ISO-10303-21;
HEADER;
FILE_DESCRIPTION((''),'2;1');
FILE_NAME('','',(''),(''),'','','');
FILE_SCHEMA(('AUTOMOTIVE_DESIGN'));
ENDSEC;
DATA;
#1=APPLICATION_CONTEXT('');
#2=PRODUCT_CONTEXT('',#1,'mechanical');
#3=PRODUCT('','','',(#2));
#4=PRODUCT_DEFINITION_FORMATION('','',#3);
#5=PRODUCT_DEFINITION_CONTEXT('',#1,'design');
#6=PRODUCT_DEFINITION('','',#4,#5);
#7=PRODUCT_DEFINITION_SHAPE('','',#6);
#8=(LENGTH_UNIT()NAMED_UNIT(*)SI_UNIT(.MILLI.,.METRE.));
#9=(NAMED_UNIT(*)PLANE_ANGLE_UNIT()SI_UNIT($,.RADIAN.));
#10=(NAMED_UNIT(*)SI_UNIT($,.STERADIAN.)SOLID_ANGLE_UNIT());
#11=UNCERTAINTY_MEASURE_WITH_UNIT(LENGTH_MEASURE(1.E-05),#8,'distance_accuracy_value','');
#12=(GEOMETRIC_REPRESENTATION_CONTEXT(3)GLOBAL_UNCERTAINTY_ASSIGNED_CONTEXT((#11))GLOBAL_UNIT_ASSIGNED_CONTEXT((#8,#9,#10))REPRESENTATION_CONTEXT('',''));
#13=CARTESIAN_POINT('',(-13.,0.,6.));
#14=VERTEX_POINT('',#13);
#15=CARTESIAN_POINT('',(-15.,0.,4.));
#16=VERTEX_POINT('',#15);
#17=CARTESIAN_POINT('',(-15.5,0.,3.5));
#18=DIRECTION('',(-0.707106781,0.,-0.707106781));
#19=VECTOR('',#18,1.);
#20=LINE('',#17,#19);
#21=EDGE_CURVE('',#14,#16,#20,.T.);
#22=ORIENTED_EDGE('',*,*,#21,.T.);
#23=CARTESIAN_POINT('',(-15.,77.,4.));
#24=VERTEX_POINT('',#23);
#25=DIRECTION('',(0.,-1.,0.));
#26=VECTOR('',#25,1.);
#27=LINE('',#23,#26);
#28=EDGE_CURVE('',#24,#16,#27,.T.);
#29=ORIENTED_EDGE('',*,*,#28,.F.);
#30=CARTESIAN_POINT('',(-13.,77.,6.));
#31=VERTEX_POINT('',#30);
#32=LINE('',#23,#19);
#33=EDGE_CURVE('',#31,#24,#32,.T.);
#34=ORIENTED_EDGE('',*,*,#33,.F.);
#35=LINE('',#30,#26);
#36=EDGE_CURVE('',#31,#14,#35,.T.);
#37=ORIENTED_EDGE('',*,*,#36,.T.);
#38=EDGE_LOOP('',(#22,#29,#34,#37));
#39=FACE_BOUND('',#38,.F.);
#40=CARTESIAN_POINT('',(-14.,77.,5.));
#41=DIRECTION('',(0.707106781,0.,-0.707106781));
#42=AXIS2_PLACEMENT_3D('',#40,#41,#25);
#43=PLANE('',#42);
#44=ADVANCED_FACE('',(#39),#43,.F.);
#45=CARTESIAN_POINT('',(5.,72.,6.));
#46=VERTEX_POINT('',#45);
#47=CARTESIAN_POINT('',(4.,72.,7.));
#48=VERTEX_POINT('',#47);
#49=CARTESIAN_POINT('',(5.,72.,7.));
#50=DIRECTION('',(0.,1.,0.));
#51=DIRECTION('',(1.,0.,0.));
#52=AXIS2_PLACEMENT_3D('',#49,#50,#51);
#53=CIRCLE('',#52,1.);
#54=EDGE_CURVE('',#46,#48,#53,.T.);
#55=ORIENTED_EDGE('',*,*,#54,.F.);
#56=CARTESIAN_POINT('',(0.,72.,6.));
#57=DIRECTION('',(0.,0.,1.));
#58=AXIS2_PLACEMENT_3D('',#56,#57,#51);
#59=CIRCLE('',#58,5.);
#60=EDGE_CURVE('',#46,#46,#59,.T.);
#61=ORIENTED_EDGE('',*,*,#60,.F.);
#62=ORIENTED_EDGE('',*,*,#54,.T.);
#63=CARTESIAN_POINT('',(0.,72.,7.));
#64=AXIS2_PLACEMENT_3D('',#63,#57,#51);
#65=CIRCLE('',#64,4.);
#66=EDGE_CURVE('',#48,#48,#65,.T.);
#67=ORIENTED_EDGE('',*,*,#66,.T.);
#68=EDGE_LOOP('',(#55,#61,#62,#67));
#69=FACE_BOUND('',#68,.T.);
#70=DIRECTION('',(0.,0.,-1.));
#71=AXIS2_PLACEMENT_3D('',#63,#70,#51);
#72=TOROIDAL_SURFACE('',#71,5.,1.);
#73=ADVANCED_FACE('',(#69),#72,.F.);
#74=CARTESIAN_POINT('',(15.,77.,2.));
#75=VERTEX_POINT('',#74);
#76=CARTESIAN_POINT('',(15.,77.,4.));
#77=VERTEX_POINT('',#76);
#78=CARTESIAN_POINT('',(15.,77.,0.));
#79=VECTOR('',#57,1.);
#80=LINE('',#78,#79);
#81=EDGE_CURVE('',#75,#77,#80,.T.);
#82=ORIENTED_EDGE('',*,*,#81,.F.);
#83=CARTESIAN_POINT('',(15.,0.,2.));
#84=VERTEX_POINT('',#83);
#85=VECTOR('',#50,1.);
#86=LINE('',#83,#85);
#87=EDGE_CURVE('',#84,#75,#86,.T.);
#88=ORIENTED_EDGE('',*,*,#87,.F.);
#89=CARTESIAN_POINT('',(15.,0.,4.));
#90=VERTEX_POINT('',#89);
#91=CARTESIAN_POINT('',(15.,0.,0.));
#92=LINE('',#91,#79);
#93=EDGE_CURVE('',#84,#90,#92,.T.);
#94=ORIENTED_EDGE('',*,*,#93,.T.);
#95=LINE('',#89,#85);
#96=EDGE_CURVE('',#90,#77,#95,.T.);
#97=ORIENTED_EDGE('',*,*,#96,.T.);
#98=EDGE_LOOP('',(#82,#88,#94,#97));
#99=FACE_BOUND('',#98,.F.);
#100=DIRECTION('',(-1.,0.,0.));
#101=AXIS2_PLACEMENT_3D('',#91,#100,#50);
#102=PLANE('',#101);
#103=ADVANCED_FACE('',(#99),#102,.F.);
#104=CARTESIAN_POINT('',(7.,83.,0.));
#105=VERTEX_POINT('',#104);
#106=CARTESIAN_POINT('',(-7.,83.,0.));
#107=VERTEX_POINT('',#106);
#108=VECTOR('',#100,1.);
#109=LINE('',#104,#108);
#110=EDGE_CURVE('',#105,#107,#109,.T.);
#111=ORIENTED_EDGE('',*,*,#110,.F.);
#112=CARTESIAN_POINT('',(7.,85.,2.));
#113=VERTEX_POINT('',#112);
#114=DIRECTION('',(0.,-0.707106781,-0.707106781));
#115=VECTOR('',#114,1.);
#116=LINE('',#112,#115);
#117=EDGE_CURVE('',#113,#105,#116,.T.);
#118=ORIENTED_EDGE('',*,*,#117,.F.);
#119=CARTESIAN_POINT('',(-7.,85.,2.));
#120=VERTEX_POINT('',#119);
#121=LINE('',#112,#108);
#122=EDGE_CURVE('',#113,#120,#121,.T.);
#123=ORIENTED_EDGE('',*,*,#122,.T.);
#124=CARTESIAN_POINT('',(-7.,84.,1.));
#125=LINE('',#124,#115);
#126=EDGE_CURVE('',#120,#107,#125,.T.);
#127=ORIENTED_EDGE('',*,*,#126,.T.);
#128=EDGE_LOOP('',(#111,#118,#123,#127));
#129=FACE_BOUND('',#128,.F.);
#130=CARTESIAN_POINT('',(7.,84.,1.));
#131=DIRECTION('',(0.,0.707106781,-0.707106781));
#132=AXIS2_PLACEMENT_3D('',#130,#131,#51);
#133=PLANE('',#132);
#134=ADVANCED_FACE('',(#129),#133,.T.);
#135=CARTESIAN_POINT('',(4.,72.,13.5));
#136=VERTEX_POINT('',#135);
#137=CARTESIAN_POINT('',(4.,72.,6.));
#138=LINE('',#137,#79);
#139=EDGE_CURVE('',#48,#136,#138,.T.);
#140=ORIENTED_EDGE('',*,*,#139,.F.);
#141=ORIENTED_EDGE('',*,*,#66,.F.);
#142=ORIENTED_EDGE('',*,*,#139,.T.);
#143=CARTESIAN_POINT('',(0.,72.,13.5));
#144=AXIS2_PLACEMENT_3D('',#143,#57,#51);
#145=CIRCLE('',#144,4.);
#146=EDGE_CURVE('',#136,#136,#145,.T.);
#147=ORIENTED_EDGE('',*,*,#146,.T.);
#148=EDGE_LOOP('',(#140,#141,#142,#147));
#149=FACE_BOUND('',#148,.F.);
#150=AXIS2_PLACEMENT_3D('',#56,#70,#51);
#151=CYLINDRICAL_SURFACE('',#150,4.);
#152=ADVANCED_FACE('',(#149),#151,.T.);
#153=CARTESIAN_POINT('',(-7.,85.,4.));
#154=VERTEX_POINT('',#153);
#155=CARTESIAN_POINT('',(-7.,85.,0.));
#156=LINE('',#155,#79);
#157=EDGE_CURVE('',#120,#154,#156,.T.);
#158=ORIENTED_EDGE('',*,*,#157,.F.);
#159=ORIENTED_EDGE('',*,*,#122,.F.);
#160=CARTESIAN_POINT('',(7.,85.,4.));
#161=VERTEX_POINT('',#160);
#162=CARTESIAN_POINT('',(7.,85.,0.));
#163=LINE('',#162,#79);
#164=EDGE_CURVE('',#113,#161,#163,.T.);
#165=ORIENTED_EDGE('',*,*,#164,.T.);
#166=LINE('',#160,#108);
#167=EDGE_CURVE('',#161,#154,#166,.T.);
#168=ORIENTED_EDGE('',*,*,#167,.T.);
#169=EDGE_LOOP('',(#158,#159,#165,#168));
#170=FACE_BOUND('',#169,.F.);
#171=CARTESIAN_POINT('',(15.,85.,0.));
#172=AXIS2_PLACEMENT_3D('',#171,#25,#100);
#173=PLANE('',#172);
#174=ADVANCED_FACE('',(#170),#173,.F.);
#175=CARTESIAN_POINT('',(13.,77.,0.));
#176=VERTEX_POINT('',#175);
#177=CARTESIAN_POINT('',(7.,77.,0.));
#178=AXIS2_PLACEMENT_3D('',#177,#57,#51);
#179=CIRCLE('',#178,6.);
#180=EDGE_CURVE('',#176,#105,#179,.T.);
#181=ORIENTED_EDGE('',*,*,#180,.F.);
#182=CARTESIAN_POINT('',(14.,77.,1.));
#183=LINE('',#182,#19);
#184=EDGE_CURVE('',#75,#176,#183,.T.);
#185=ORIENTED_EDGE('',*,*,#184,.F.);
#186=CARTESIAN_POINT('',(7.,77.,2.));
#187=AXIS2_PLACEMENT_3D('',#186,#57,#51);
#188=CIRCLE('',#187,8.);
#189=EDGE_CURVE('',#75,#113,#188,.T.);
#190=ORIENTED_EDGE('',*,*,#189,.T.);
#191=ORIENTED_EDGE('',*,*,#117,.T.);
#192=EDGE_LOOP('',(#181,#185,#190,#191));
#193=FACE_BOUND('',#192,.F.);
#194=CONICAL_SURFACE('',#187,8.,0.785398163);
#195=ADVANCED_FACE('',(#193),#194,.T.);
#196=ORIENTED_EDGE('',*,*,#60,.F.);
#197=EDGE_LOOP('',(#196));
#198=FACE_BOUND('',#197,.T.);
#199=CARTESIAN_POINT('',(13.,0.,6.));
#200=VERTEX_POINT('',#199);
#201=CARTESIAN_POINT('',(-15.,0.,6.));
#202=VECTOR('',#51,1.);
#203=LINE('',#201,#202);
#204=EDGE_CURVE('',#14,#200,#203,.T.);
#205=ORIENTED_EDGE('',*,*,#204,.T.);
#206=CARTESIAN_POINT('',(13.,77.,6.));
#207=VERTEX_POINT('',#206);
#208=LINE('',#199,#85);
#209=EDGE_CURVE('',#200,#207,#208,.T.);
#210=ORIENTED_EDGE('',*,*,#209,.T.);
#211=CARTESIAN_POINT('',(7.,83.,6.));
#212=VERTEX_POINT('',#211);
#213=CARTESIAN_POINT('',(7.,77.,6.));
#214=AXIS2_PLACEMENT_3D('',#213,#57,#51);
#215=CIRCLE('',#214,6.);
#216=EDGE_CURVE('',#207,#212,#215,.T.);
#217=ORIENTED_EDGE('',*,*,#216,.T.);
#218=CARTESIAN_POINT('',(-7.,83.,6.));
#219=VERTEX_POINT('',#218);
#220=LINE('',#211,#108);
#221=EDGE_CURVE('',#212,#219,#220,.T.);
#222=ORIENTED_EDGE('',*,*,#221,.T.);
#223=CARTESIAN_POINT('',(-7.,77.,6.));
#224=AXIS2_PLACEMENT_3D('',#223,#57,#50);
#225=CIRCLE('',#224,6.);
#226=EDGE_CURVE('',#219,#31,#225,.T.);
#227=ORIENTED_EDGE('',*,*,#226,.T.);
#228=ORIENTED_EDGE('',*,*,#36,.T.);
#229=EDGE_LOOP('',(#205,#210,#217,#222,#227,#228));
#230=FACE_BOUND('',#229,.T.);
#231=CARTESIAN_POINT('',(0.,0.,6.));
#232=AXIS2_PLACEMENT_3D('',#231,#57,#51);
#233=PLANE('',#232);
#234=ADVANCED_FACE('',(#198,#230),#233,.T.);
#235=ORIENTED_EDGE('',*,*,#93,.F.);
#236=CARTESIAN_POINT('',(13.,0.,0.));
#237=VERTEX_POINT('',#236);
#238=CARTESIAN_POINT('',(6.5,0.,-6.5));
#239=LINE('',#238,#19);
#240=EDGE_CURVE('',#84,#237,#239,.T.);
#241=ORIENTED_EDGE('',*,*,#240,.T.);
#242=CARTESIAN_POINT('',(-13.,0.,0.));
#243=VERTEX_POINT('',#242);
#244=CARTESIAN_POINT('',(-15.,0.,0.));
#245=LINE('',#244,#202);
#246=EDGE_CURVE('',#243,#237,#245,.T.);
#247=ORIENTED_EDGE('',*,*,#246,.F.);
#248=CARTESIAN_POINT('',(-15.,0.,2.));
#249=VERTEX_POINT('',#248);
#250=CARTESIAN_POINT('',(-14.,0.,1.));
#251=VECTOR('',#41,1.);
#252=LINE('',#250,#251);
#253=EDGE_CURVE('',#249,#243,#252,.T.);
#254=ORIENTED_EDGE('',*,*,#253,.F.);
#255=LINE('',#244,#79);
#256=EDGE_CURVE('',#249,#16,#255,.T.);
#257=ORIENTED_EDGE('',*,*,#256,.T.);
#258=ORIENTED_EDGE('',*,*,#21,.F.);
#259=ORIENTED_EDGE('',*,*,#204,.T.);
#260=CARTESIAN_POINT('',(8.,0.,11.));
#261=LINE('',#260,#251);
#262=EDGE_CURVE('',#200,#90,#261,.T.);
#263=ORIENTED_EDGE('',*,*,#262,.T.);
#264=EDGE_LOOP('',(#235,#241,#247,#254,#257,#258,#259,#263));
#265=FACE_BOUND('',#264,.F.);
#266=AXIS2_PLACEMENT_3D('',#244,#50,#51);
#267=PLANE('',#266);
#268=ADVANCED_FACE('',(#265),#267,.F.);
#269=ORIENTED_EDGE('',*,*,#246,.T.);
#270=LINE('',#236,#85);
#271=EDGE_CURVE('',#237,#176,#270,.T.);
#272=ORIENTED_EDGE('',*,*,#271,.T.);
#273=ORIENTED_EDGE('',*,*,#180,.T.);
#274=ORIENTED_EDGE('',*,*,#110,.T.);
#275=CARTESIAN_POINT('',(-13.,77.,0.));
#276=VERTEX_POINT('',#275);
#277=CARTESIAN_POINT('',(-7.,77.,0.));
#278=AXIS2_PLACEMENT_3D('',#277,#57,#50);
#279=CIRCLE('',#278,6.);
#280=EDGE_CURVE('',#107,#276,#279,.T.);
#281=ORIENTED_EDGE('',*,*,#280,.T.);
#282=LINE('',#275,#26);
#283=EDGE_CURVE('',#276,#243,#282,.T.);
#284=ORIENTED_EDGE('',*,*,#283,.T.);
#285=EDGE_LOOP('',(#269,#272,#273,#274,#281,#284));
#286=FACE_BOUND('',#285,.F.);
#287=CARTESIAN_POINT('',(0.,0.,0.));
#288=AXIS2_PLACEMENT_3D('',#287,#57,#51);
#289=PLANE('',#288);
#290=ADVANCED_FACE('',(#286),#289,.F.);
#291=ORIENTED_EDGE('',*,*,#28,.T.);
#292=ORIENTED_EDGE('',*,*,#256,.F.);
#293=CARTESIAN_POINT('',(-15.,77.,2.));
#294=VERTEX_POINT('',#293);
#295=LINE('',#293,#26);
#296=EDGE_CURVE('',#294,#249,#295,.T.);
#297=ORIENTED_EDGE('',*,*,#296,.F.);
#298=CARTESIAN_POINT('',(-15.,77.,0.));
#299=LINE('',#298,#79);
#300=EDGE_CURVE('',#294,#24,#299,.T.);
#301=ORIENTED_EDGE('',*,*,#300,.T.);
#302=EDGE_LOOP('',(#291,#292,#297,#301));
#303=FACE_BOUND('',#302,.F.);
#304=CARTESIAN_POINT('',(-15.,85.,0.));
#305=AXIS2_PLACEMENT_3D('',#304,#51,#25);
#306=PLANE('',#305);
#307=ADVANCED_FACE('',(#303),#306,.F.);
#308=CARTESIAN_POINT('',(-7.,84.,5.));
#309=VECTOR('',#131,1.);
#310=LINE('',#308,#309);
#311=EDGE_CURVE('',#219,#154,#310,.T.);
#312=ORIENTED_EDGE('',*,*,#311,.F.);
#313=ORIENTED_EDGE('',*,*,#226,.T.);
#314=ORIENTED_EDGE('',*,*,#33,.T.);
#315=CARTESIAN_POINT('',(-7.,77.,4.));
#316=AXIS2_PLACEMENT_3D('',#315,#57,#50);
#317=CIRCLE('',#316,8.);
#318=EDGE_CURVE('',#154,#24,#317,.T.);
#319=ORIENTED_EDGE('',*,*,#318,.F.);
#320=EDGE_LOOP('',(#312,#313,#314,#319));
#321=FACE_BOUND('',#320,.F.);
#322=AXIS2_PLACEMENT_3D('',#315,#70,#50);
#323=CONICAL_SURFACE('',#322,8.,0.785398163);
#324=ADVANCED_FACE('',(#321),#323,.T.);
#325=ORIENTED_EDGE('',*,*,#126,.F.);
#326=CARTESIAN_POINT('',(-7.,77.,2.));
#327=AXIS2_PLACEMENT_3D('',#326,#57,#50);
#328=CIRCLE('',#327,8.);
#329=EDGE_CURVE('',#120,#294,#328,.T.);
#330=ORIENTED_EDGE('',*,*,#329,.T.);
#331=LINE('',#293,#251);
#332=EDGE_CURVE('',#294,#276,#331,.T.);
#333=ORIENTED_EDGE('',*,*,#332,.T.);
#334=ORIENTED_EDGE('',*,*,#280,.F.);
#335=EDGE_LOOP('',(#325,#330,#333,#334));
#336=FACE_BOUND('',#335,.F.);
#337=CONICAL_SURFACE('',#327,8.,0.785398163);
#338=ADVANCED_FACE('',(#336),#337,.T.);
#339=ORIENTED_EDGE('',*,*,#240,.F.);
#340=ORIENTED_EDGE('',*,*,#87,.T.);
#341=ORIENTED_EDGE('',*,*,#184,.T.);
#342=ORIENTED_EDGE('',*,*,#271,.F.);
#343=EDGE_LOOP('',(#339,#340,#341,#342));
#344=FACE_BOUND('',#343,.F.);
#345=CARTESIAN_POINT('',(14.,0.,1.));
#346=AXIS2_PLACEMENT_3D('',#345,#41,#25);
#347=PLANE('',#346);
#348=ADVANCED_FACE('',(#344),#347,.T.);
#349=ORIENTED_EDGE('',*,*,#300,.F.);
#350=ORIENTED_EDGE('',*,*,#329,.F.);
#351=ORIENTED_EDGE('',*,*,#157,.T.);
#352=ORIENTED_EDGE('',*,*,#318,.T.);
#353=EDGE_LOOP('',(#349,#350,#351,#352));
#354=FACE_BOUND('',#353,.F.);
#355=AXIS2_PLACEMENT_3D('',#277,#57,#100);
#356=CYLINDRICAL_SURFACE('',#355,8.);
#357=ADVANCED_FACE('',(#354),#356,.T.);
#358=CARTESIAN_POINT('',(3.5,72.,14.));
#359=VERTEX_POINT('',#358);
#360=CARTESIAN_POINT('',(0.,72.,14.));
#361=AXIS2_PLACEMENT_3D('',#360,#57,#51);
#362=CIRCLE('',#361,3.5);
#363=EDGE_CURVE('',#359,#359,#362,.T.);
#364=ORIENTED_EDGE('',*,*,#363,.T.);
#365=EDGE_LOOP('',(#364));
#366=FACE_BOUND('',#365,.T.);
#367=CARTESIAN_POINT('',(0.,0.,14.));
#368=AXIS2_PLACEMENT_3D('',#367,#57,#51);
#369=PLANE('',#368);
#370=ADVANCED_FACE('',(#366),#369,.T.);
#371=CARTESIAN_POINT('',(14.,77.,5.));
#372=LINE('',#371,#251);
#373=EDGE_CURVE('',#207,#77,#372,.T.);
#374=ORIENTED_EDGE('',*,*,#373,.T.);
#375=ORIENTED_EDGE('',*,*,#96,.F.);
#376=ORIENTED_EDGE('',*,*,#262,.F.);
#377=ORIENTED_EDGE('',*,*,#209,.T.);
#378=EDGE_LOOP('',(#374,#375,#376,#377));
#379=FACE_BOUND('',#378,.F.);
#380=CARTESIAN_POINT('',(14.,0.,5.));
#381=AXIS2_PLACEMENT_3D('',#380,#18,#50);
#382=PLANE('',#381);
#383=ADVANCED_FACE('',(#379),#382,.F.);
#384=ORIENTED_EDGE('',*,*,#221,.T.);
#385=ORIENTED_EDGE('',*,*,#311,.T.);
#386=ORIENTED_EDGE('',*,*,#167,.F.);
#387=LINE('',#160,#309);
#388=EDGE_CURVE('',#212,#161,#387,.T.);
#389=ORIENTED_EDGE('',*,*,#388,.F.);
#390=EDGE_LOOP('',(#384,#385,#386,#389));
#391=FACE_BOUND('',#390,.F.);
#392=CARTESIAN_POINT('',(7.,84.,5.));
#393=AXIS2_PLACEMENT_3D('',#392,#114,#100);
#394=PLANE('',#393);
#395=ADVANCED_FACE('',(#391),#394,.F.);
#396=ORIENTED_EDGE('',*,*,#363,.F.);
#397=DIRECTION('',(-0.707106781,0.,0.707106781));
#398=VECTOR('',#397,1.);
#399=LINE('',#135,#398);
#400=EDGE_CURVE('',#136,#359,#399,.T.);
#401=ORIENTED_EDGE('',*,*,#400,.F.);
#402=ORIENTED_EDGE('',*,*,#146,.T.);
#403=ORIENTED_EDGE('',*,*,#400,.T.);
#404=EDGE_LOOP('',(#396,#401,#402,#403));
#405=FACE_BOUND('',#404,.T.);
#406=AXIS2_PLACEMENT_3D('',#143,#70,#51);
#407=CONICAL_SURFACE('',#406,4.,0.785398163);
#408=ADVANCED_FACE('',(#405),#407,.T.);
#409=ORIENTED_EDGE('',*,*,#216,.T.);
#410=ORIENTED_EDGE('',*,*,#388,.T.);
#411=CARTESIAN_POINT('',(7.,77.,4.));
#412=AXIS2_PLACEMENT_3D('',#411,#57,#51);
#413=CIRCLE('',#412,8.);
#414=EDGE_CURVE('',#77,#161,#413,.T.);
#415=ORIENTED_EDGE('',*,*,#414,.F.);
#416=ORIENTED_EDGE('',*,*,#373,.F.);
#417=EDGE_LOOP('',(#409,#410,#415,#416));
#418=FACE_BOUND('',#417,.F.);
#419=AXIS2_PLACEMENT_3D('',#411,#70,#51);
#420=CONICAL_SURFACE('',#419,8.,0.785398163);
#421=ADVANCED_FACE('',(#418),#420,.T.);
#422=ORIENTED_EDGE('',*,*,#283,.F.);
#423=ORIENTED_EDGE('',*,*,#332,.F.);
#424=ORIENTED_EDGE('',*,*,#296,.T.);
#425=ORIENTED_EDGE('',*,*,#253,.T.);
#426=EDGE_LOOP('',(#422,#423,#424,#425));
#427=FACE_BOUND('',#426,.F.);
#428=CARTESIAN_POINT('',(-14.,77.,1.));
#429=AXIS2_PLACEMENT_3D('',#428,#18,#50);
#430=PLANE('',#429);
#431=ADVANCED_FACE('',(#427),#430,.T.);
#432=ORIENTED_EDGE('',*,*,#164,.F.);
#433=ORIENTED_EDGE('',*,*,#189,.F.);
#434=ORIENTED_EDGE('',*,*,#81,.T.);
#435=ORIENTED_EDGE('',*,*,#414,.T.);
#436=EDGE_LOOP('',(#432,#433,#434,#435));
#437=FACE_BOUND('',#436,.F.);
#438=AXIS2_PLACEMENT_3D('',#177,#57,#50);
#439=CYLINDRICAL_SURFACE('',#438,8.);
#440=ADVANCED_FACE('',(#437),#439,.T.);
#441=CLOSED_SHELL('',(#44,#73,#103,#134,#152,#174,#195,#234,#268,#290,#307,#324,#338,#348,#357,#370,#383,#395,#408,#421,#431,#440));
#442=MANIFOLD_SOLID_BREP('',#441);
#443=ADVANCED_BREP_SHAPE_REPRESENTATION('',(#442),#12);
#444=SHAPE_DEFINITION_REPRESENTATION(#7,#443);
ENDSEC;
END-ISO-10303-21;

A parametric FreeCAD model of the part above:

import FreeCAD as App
import Part
import Sketcher


def edges_at(feature, points):
    """Names of the edges that pass closest to the given points."""
    edges = feature.Shape.Edges
    near = lambda p: min(range(len(edges)), key=lambda i: edges[i].distToShape(Part.Vertex(*p))[0])
    return sorted({f"Edge{near(p) + 1}" for p in points})


def add_polygon(sketch, points):
    """Adds a closed chain of lines whose ends are joined by coincident constraints."""
    first, n = sketch.GeometryCount, len(points)
    for a, b in zip(points, points[1:] + points[:1]):
        sketch.addGeometry(Part.LineSegment(App.Vector(*a, 0), App.Vector(*b, 0)), False)
    for i in range(n):
        sketch.addConstraint(Sketcher.Constraint("Coincident", first + i, 2, first + (i + 1) % n, 1))

doc = App.newDocument("Part")
body = doc.addObject("PartDesign::Body", "Body")

# Sketch on XY plane
sketch1 = doc.addObject("Sketcher::SketchObject", "Sketch")
body.addObject(sketch1)
sketch1.AttachmentSupport = (doc.XY_Plane, [""])
sketch1.MapMode = "FlatFace"
add_polygon(sketch1, [(-15, 85), (-15, 0), (15, 0), (15, 85)])  # lines 0-3
sketch1.addConstraint(Sketcher.Constraint("Vertical", 0))
sketch1.addConstraint(Sketcher.Constraint("Horizontal", 1))
sketch1.addConstraint(Sketcher.Constraint("Vertical", 2))
sketch1.addConstraint(Sketcher.Constraint("Horizontal", 3))
sketch1.addConstraint(Sketcher.Constraint("Symmetric", 0, 2, 1, 2, -1, 1))
sketch1.addConstraint(Sketcher.Constraint("DistanceX", 1, 1, 1, 2, 30.0))
sketch1.addConstraint(Sketcher.Constraint("DistanceY", 0, 2, 0, 1, 85.0))
pad1 = doc.addObject("PartDesign::Pad", "Pad")
body.addObject(pad1)
pad1.Profile = sketch1
pad1.Length = 6
doc.recompute()

fillet = doc.addObject("PartDesign::Fillet", "Fillet")
body.addObject(fillet)
fillet.Base = (pad1, edges_at(pad1, [(15, 85, 3), (-15, 85, 3)]))
fillet.Radius = 8

# Sketch on XY plane
sketch2 = doc.addObject("Sketcher::SketchObject", "Sketch001")
body.addObject(sketch2)
sketch2.AttachmentSupport = (doc.XY_Plane, [""])
sketch2.MapMode = "FlatFace"
sketch2.AttachmentOffset = App.Placement(App.Vector(0, 0, 6), App.Rotation())
sketch2.addGeometry(Part.Circle(App.Vector(0, 72, 0), App.Vector(0, 0, 1), 4), False)
sketch2.addConstraint(Sketcher.Constraint("PointOnObject", 0, 3, -2))
sketch2.addConstraint(Sketcher.Constraint("Diameter", 0, 8.0))
sketch2.addConstraint(Sketcher.Constraint("DistanceY", -1, 1, 0, 3, 72.0))
pad2 = doc.addObject("PartDesign::Pad", "Pad001")
body.addObject(pad2)
pad2.Profile = sketch2
pad2.Length = 8
doc.recompute()

fillet2 = doc.addObject("PartDesign::Fillet", "Fillet001")
body.addObject(fillet2)
fillet2.Base = (pad2, edges_at(pad2, [(-4, 72, 6)]))
fillet2.Radius = 1
doc.recompute()

chamfer = doc.addObject("PartDesign::Chamfer", "Chamfer")
body.addObject(chamfer)
chamfer.Base = (fillet2, edges_at(fillet2, [(-4, 72, 14)]))
chamfer.Size = 0.5
doc.recompute()

chamfer2 = doc.addObject("PartDesign::Chamfer", "Chamfer001")
body.addObject(chamfer2)
chamfer2.Base = (chamfer, edges_at(chamfer, [
    (0, 85, 6),
    (-12.657, 82.657, 6),
    (-15, 38.5, 6),
    (12.657, 82.657, 6),
    (15, 38.5, 6),
    (0, 85, 0),
    (-12.657, 82.657, 0),
    (-15, 38.5, 0),
    (12.657, 82.657, 0),
    (15, 38.5, 0),
]))
chamfer2.Size = 2

doc.recompute()
